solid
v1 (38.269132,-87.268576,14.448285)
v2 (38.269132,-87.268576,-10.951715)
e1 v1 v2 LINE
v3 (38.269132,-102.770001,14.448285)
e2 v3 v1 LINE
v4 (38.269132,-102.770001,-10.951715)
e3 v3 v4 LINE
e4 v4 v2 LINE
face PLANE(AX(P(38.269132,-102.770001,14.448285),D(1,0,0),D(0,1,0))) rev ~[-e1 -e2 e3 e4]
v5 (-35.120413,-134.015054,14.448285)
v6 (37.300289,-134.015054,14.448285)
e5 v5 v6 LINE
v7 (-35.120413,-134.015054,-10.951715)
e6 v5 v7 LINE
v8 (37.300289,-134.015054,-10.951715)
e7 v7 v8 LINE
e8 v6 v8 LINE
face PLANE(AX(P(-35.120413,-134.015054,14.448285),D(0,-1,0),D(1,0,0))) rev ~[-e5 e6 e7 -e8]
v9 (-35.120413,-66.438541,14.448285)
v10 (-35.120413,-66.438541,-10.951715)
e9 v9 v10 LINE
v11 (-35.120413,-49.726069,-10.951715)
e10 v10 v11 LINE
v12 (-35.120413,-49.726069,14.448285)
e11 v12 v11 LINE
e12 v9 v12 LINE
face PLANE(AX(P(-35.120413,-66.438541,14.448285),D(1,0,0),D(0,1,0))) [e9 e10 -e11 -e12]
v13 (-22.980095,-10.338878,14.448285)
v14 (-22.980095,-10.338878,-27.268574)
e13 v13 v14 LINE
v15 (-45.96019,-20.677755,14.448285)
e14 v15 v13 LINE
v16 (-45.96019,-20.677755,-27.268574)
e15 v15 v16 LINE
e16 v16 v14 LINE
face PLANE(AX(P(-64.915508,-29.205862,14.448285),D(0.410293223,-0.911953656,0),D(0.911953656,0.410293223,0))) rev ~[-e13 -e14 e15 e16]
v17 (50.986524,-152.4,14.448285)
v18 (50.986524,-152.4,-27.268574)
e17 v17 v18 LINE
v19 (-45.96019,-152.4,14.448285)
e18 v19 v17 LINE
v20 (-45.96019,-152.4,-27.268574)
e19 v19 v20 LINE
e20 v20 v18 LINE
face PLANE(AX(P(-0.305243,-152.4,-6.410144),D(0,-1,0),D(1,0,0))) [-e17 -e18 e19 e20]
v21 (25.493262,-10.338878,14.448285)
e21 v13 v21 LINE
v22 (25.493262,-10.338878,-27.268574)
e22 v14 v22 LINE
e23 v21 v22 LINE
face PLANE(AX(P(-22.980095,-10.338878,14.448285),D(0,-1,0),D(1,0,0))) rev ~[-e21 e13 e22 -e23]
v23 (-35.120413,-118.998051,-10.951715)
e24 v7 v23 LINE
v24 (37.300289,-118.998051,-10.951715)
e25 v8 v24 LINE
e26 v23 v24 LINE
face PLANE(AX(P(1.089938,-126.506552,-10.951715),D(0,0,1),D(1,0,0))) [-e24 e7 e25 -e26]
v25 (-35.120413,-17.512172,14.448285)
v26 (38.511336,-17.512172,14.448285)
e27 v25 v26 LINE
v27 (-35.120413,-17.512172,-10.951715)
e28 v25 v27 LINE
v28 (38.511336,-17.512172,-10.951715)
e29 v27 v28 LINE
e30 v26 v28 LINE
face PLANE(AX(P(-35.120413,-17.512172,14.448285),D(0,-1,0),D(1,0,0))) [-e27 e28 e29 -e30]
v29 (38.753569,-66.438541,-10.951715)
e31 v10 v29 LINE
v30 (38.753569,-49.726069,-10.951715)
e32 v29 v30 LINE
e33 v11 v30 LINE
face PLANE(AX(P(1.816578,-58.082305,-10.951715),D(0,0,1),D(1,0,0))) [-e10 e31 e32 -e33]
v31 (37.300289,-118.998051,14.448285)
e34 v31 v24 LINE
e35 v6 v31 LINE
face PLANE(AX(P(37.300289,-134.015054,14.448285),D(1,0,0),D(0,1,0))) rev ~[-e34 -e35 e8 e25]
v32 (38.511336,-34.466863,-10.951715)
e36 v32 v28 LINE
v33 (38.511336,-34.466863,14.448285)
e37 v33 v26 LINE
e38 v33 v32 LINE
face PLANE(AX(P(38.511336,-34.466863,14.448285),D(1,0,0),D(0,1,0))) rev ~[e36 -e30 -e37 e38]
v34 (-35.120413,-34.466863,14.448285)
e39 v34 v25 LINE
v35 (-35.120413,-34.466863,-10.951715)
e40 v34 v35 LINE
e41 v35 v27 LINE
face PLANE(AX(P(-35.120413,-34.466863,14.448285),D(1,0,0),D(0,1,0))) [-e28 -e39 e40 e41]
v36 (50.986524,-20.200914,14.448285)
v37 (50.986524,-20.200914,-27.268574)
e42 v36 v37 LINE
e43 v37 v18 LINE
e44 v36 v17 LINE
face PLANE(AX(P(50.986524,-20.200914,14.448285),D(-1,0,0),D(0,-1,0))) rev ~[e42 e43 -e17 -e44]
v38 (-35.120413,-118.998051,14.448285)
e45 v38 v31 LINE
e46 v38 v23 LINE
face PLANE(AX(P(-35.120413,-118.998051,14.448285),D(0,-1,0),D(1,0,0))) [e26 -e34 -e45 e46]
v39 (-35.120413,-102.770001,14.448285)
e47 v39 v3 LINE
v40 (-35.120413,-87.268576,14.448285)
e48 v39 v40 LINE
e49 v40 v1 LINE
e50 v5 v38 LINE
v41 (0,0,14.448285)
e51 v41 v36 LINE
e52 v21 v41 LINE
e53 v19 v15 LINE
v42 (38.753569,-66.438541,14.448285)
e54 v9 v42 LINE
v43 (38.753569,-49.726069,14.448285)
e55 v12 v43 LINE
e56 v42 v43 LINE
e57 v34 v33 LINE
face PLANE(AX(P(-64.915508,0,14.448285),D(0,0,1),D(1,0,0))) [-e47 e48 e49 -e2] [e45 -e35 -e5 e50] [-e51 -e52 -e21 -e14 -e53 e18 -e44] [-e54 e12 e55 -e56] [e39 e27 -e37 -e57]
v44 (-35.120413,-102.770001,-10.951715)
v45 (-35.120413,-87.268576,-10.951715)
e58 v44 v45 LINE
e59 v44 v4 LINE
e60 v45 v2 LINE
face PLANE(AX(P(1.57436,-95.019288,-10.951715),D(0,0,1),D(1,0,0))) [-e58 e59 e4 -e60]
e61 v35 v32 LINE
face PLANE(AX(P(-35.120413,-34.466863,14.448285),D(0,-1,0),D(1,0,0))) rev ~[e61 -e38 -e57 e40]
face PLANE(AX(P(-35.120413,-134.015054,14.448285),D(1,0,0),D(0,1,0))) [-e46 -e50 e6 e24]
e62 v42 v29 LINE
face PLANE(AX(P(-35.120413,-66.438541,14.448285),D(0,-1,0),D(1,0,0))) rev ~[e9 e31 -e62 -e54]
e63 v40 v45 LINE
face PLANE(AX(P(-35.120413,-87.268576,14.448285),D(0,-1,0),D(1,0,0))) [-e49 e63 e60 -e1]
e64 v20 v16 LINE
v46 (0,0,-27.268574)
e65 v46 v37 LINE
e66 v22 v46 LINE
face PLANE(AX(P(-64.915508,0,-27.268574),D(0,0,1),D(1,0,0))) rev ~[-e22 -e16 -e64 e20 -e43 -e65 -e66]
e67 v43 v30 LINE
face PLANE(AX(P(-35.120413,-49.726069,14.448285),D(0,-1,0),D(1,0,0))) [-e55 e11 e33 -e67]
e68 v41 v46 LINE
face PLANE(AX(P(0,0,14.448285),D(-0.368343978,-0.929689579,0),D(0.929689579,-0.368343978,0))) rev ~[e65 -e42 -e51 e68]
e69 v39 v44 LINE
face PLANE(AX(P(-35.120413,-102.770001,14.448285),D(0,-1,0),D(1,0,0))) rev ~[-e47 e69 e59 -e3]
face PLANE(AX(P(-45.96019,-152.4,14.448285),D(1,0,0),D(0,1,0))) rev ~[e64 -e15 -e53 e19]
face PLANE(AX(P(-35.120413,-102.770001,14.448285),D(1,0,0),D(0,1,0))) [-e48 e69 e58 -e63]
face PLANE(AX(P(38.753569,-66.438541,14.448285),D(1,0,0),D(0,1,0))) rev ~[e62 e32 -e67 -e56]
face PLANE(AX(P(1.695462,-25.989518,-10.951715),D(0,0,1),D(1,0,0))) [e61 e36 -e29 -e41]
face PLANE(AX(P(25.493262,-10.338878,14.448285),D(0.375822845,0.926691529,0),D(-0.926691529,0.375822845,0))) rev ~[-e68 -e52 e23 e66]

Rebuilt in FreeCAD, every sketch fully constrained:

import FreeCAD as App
import Part
import Sketcher
Q = App.Units.Quantity

doc = App.newDocument("Part")
params = doc.addObject("Spreadsheet::Sheet", "Params")
for row, (alias, value) in enumerate([
    ("pad1_length", "6 in"),
    ("pocket1_length", "1 in"),
    ("pocket3_length", "1 in"),
    ("pocket4_length", "1 in"),
    ("pocket5_length", "75.791933 mm"),
    ("pocket6_length", "105.43967 mm"),
    ("pocket7_length", "137.529299 mm"),
], start=1):
    params.set(f"A{row}", alias)
    params.set(f"B{row}", "=" + value)
    params.setAlias(f"B{row}", alias)

body = doc.addObject("PartDesign::Body", "Body")

# Sketch on XZ plane
sketch1 = doc.addObject("Sketcher::SketchObject", "Sketch")
body.addObject(sketch1)
sketch1.AttachmentSupport = (doc.XZ_Plane, [""])
sketch1.MapMode = "FlatFace"
sketch1.addGeometry([
    Part.LineSegment(App.Vector(-65, 14, 0), App.Vector(-65, -27, 0)),
    Part.LineSegment(App.Vector(-65, -27, 0), App.Vector(64, -27, 0)),
    Part.LineSegment(App.Vector(64, -27, 0), App.Vector(64, 14, 0)),
    Part.LineSegment(App.Vector(64, 14, 0), App.Vector(-65, 14, 0)),
], False)
sketch1.addConstraint([
    Sketcher.Constraint("Coincident", 0, 2, 1, 1),
    Sketcher.Constraint("Coincident", 1, 2, 2, 1),
    Sketcher.Constraint("Coincident", 2, 2, 3, 1),
    Sketcher.Constraint("Coincident", 3, 2, 0, 1),
    Sketcher.Constraint("Vertical", 0),
    Sketcher.Constraint("Horizontal", 1),
    Sketcher.Constraint("Vertical", 2),
    Sketcher.Constraint("Horizontal", 3),
    Sketcher.Constraint("DistanceX", 1, 1, 1, 2, Q("129.22053 mm")),
    Sketcher.Constraint("DistanceY", 0, 2, 0, 1, Q("41.716859 mm")),
    Sketcher.Constraint("DistanceX", 0, 2, -1, 1, Q("64.915508 mm")),
    Sketcher.Constraint("DistanceY", 0, 2, -1, 1, Q("27.268574 mm")),
])
pad1 = doc.addObject("PartDesign::Pad", "Pad")
body.addObject(pad1)
pad1.Profile = sketch1
pad1.setExpression("Length", "Params.pad1_length")

# Sketch on XY plane
sketch2 = doc.addObject("Sketcher::SketchObject", "Sketch001")
body.addObject(sketch2)
sketch2.AttachmentSupport = (doc.XY_Plane, [""])
sketch2.MapMode = "FlatFace"
sketch2.AttachmentOffset = App.Placement(App.Vector(0, 0, 14.448285), App.Rotation())
sketch2.addGeometry([
    Part.LineSegment(App.Vector(-35, -18, 0), App.Vector(-35, -34, 0)),  # 0
    Part.LineSegment(App.Vector(-35, -34, 0), App.Vector(39, -34, 0)),  # 1
    Part.LineSegment(App.Vector(39, -34, 0), App.Vector(39, -18, 0)),  # 2
    Part.LineSegment(App.Vector(39, -18, 0), App.Vector(-35, -18, 0)),  # 3
    Part.LineSegment(App.Vector(-35, -50, 0), App.Vector(-35, -66, 0)),  # 4
    Part.LineSegment(App.Vector(-35, -66, 0), App.Vector(39, -66, 0)),  # 5
    Part.LineSegment(App.Vector(39, -66, 0), App.Vector(39, -50, 0)),  # 6
    Part.LineSegment(App.Vector(39, -50, 0), App.Vector(-35, -50, 0)),  # 7
], False)
sketch2.addConstraint([
    Sketcher.Constraint("Coincident", 0, 2, 1, 1),
    Sketcher.Constraint("Coincident", 1, 2, 2, 1),
    Sketcher.Constraint("Coincident", 2, 2, 3, 1),
    Sketcher.Constraint("Coincident", 3, 2, 0, 1),
    Sketcher.Constraint("Coincident", 4, 2, 5, 1),
    Sketcher.Constraint("Coincident", 5, 2, 6, 1),
    Sketcher.Constraint("Coincident", 6, 2, 7, 1),
    Sketcher.Constraint("Coincident", 7, 2, 4, 1),
    Sketcher.Constraint("Vertical", 0),
    Sketcher.Constraint("Horizontal", 1),
    Sketcher.Constraint("Vertical", 2),
    Sketcher.Constraint("Horizontal", 3),
    Sketcher.Constraint("Vertical", 4),
    Sketcher.Constraint("Horizontal", 5),
    Sketcher.Constraint("Vertical", 6),
    Sketcher.Constraint("Horizontal", 7),
    Sketcher.Constraint("Vertical", 3, 2, 4, 2),
    Sketcher.Constraint("DistanceX", 1, 1, 1, 2, Q("73.631749 mm")),
    Sketcher.Constraint("DistanceX", 5, 1, 5, 2, Q("73.873982 mm")),
    Sketcher.Constraint("DistanceY", 0, 2, 0, 1, Q("16.95469 mm")),
    Sketcher.Constraint("DistanceY", 4, 2, 4, 1, Q("16.712472 mm")),
    Sketcher.Constraint("DistanceY", 4, 2, -1, 1, Q("66.438541 mm")),
    Sketcher.Constraint("DistanceX", -1, 1, 5, 2, Q("38.753569 mm")),
    Sketcher.Constraint("DistanceY", 4, 2, 0, 2, Q("31.971678 mm")),
])
pocket1 = doc.addObject("PartDesign::Pocket", "Pocket")
body.addObject(pocket1)
pocket1.Profile = sketch2
pocket1.setExpression("Length", "Params.pocket1_length")

# Sketch on XY plane
sketch3 = doc.addObject("Sketcher::SketchObject", "Sketch002")
body.addObject(sketch3)
sketch3.AttachmentSupport = (doc.XY_Plane, [""])
sketch3.MapMode = "FlatFace"
sketch3.AttachmentOffset = App.Placement(App.Vector(0, 0, 14.448285), App.Rotation())
sketch3.addGeometry([
    Part.LineSegment(App.Vector(64, 0, 0), App.Vector(0, 0, 0)),  # 0
    Part.LineSegment(App.Vector(0, 0, 0), App.Vector(64, -25, 0)),  # 1
    Part.LineSegment(App.Vector(64, -25, 0), App.Vector(64, 0, 0)),  # 2
    Part.LineSegment(App.Vector(-65, 0, 0), App.Vector(-65, -29, 0)),  # 3
    Part.LineSegment(App.Vector(-65, -29, 0), App.Vector(0, 0, 0)),  # 4
    Part.LineSegment(App.Vector(0, 0, 0), App.Vector(-65, 0, 0)),  # 5
], False)
sketch3.addConstraint([
    Sketcher.Constraint("Coincident", 0, 2, 1, 1),
    Sketcher.Constraint("Coincident", 1, 2, 2, 1),
    Sketcher.Constraint("Coincident", 2, 2, 0, 1),
    Sketcher.Constraint("Coincident", 3, 2, 4, 1),
    Sketcher.Constraint("Coincident", 4, 2, 5, 1),
    Sketcher.Constraint("Coincident", 5, 2, 3, 1),
    Sketcher.Constraint("Horizontal", 0),
    Sketcher.Constraint("Vertical", 2),
    Sketcher.Constraint("Vertical", 3),
    Sketcher.Constraint("Horizontal", 5),
    Sketcher.Constraint("Coincident", 0, 2, -1, 1),
    Sketcher.Constraint("Coincident", 4, 2, -1, 1),
    Sketcher.Constraint("DistanceX", 5, 2, 5, 1, Q("64.915508 mm")),
    Sketcher.Constraint("DistanceX", 0, 2, 0, 1, Q("64.305022 mm")),
    Sketcher.Constraint("DistanceY", 2, 1, 2, 2, Q("25.477717 mm")),
    Sketcher.Constraint("DistanceY", 3, 2, 3, 1, Q("29.205862 mm")),
])
pocket2 = doc.addObject("PartDesign::Pocket", "Pocket001")
body.addObject(pocket2)
pocket2.Profile = sketch3
pocket2.Type = "ThroughAll"

# Sketch on XY plane
sketch4 = doc.addObject("Sketcher::SketchObject", "Sketch003")
body.addObject(sketch4)
sketch4.AttachmentSupport = (doc.XY_Plane, [""])
sketch4.MapMode = "FlatFace"
sketch4.AttachmentOffset = App.Placement(App.Vector(0, 0, 14.448285), App.Rotation())
sketch4.addGeometry([
    Part.LineSegment(App.Vector(-35, -87, 0), App.Vector(-35, -103, 0)),
    Part.LineSegment(App.Vector(-35, -103, 0), App.Vector(38, -103, 0)),
    Part.LineSegment(App.Vector(38, -103, 0), App.Vector(38, -87, 0)),
    Part.LineSegment(App.Vector(38, -87, 0), App.Vector(-35, -87, 0)),
], False)
sketch4.addConstraint([
    Sketcher.Constraint("Coincident", 0, 2, 1, 1),
    Sketcher.Constraint("Coincident", 1, 2, 2, 1),
    Sketcher.Constraint("Coincident", 2, 2, 3, 1),
    Sketcher.Constraint("Coincident", 3, 2, 0, 1),
    Sketcher.Constraint("Vertical", 0),
    Sketcher.Constraint("Horizontal", 1),
    Sketcher.Constraint("Vertical", 2),
    Sketcher.Constraint("Horizontal", 3),
    Sketcher.Constraint("DistanceY", 0, 2, -1, 1, Q("102.770001 mm")),
    Sketcher.Constraint("DistanceX", 1, 1, 1, 2, Q("73.389545 mm")),
    Sketcher.Constraint("DistanceY", 0, 2, 0, 1, Q("15.501425 mm")),
    Sketcher.Constraint("DistanceX", 0, 2, -1, 1, Q("35.120413 mm")),
])
pocket3 = doc.addObject("PartDesign::Pocket", "Pocket002")
body.addObject(pocket3)
pocket3.Profile = sketch4
pocket3.setExpression("Length", "Params.pocket3_length")

# Sketch on XY plane
sketch5 = doc.addObject("Sketcher::SketchObject", "Sketch004")
body.addObject(sketch5)
sketch5.AttachmentSupport = (doc.XY_Plane, [""])
sketch5.MapMode = "FlatFace"
sketch5.AttachmentOffset = App.Placement(App.Vector(0, 0, 14.448285), App.Rotation())
sketch5.addGeometry([
    Part.LineSegment(App.Vector(-35, -119, 0), App.Vector(-35, -134, 0)),
    Part.LineSegment(App.Vector(-35, -134, 0), App.Vector(37, -134, 0)),
    Part.LineSegment(App.Vector(37, -134, 0), App.Vector(37, -119, 0)),
    Part.LineSegment(App.Vector(37, -119, 0), App.Vector(-35, -119, 0)),
], False)
sketch5.addConstraint([
    Sketcher.Constraint("Coincident", 0, 2, 1, 1),
    Sketcher.Constraint("Coincident", 1, 2, 2, 1),
    Sketcher.Constraint("Coincident", 2, 2, 3, 1),
    Sketcher.Constraint("Coincident", 3, 2, 0, 1),
    Sketcher.Constraint("Vertical", 0),
    Sketcher.Constraint("Horizontal", 1),
    Sketcher.Constraint("Vertical", 2),
    Sketcher.Constraint("Horizontal", 3),
    Sketcher.Constraint("DistanceX", 1, 1, 1, 2, Q("72.420701 mm")),
    Sketcher.Constraint("DistanceY", 0, 2, 0, 1, Q("15.017003 mm")),
    Sketcher.Constraint("DistanceX", -1, 1, 1, 2, Q("37.300289 mm")),
    Sketcher.Constraint("DistanceY", 2, 2, -1, 1, Q("118.998051 mm")),
])
pocket4 = doc.addObject("PartDesign::Pocket", "Pocket003")
body.addObject(pocket4)
pocket4.Profile = sketch5
pocket4.setExpression("Length", "Params.pocket4_length")

# Sketch on XY plane
sketch6 = doc.addObject("Sketcher::SketchObject", "Sketch005")
body.addObject(sketch6)
sketch6.AttachmentSupport = (doc.XY_Plane, [""])
sketch6.MapMode = "FlatFace"
sketch6.AttachmentOffset = App.Placement(App.Vector(0, 0, 14.448285), App.Rotation())
sketch6.addGeometry([
    Part.LineSegment(App.Vector(64, -25, 0), App.Vector(51, -20, 0)),
    Part.LineSegment(App.Vector(51, -20, 0), App.Vector(51, -152, 0)),
    Part.LineSegment(App.Vector(51, -152, 0), App.Vector(64, -152, 0)),
    Part.LineSegment(App.Vector(64, -152, 0), App.Vector(64, -25, 0)),
], False)
sketch6.addConstraint([
    Sketcher.Constraint("Coincident", 0, 2, 1, 1),
    Sketcher.Constraint("Coincident", 1, 2, 2, 1),
    Sketcher.Constraint("Coincident", 2, 2, 3, 1),
    Sketcher.Constraint("Coincident", 3, 2, 0, 1),
    Sketcher.Constraint("Vertical", 1),
    Sketcher.Constraint("Horizontal", 2),
    Sketcher.Constraint("Vertical", 3),
    Sketcher.Constraint("DistanceY", 1, 2, -1, 1, Q("6 in")),
    Sketcher.Constraint("DistanceX", 2, 1, 2, 2, Q("13.318499 mm")),
    Sketcher.Constraint("DistanceY", 1, 2, 1, 1, Q("132.199086 mm")),
    Sketcher.Constraint("DistanceY", 3, 1, 3, 2, Q("126.922283 mm")),
    Sketcher.Constraint("DistanceX", -1, 1, 0, 2, Q("50.986524 mm")),
])
pocket5 = doc.addObject("PartDesign::Pocket", "Pocket004")
body.addObject(pocket5)
pocket5.Profile = sketch6
pocket5.setExpression("Length", "Params.pocket5_length")

# Sketch on XY plane
sketch7 = doc.addObject("Sketcher::SketchObject", "Sketch006")
body.addObject(sketch7)
sketch7.AttachmentSupport = (doc.XY_Plane, [""])
sketch7.MapMode = "FlatFace"
sketch7.AttachmentOffset = App.Placement(App.Vector(0, 0, 14.448285), App.Rotation())
sketch7.addGeometry([
    Part.LineSegment(App.Vector(-46, -152, 0), App.Vector(-46, -21, 0)),
    Part.LineSegment(App.Vector(-46, -21, 0), App.Vector(-65, -29, 0)),
    Part.LineSegment(App.Vector(-65, -29, 0), App.Vector(-65, -152, 0)),
    Part.LineSegment(App.Vector(-65, -152, 0), App.Vector(-46, -152, 0)),
], False)
sketch7.addConstraint([
    Sketcher.Constraint("Coincident", 0, 2, 1, 1),
    Sketcher.Constraint("Coincident", 1, 2, 2, 1),
    Sketcher.Constraint("Coincident", 2, 2, 3, 1),
    Sketcher.Constraint("Coincident", 3, 2, 0, 1),
    Sketcher.Constraint("Vertical", 0),
    Sketcher.Constraint("Vertical", 2),
    Sketcher.Constraint("Horizontal", 3),
    Sketcher.Constraint("DistanceY", 2, 2, -1, 1, Q("6 in")),
    Sketcher.Constraint("DistanceX", 3, 1, 3, 2, Q("18.955319 mm")),
    Sketcher.Constraint("DistanceY", 0, 1, 0, 2, Q("131.722245 mm")),
    Sketcher.Constraint("DistanceY", 2, 2, 2, 1, Q("123.194138 mm")),
    Sketcher.Constraint("DistanceX", 0, 2, -1, 1, Q("45.96019 mm")),
])
pocket6 = doc.addObject("PartDesign::Pocket", "Pocket005")
body.addObject(pocket6)
pocket6.Profile = sketch7
pocket6.setExpression("Length", "Params.pocket6_length")

# Sketch on XY plane
sketch8 = doc.addObject("Sketcher::SketchObject", "Sketch007")
body.addObject(sketch8)
sketch8.AttachmentSupport = (doc.XY_Plane, [""])
sketch8.MapMode = "FlatFace"
sketch8.AttachmentOffset = App.Placement(App.Vector(0, 0, 14.448285), App.Rotation())
sketch8.addGeometry([
    Part.LineSegment(App.Vector(0, 0, 0), App.Vector(-23, -10, 0)),
    Part.LineSegment(App.Vector(-23, -10, 0), App.Vector(25, -10, 0)),
    Part.LineSegment(App.Vector(25, -10, 0), App.Vector(0, 0, 0)),
], False)
sketch8.addConstraint([
    Sketcher.Constraint("Coincident", 0, 2, 1, 1),
    Sketcher.Constraint("Coincident", 1, 2, 2, 1),
    Sketcher.Constraint("Coincident", 2, 2, 0, 1),
    Sketcher.Constraint("Horizontal", 1),
    Sketcher.Constraint("Coincident", 2, 2, -1, 1),
    Sketcher.Constraint("DistanceX", 1, 1, 1, 2, Q("1.9083999 in")),
    Sketcher.Constraint("DistanceX", -1, 1, 1, 2, Q("25.493262 mm")),
    Sketcher.Constraint("Distance", 0, Q("25.198753 mm")),
])
pocket7 = doc.addObject("PartDesign::Pocket", "Pocket006")
body.addObject(pocket7)
pocket7.Profile = sketch8
pocket7.setExpression("Length", "Params.pocket7_length")

doc.recompute()
